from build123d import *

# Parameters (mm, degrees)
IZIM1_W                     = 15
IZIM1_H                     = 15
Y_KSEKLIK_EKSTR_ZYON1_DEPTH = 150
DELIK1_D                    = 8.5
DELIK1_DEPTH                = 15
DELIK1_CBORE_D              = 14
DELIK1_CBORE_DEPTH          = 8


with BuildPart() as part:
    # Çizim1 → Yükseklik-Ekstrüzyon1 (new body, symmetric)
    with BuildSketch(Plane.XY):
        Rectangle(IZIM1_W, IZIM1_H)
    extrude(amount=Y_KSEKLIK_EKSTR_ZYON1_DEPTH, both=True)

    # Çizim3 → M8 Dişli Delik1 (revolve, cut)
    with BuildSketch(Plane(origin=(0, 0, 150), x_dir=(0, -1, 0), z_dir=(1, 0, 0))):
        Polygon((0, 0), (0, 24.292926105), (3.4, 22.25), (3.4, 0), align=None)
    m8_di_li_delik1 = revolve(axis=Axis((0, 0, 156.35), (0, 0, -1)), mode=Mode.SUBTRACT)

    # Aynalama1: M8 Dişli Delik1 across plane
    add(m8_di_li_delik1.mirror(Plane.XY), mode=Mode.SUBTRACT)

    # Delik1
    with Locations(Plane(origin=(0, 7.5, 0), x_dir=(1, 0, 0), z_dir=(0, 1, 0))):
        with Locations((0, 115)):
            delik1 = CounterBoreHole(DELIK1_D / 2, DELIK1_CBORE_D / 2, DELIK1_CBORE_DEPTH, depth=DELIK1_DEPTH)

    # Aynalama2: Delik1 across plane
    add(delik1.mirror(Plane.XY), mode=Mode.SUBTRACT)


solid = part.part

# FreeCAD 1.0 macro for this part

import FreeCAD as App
import Part
import Sketcher
Q = App.Units.Quantity


def add_polygon(sketch, points):
    """Adds a closed chain of lines whose ends are joined by coincident constraints."""
    first, n = sketch.GeometryCount, len(points)
    for a, b in zip(points, points[1:] + points[:1]):
        sketch.addGeometry(Part.LineSegment(App.Vector(*a, 0), App.Vector(*b, 0)), False)
    for i in range(n):
        sketch.addConstraint(Sketcher.Constraint("Coincident", first + i, 2, first + (i + 1) % n, 1))

doc = App.newDocument("Part")
params = doc.addObject("Spreadsheet::Sheet", "Params")
for row, (alias, value) in enumerate([
    ("sketch1_width", "15 mm"),
    ("pad1_length", "300 mm"),
    ("sketch2_width", "3.4 mm"),
    ("sketch2_height", "22.25 mm"),
    ("groove_angle", "360 deg"),
    ("sketch3_diameter", "8.5 mm"),
    ("hole_diameter", "8.5 mm"),
    ("hole_depth", "15 mm"),
    ("hole_cbore_diameter", "14 mm"),
    ("hole_cbore_depth", "8 mm"),
], start=1):
    params.set(f"A{row}", alias)
    params.set(f"B{row}", "=" + value)
    params.setAlias(f"B{row}", alias)

body = doc.addObject("PartDesign::Body", "Body")

# Sketch on XY plane
sketch1 = doc.addObject("Sketcher::SketchObject", "Sketch")
body.addObject(sketch1)
sketch1.AttachmentSupport = (doc.XY_Plane, [""])
sketch1.MapMode = "FlatFace"
add_polygon(sketch1, [(-7.5, 7.5), (-7.5, -7.5), (7.5, -7.5), (7.5, 7.5)])  # lines 0-3
sketch1.addConstraint(Sketcher.Constraint("Vertical", 0))
sketch1.addConstraint(Sketcher.Constraint("Horizontal", 1))
sketch1.addConstraint(Sketcher.Constraint("Vertical", 2))
sketch1.addConstraint(Sketcher.Constraint("Horizontal", 3))
sketch1.addConstraint(Sketcher.Constraint("Symmetric", 0, 2, 2, 2, -1, 1))
sketch1.addConstraint(Sketcher.Constraint("Equal", 3, 0))
sketch1.addConstraint(Sketcher.Constraint("DistanceX", 1, 1, 1, 2, Q("15 mm")))
sketch1.setExpression("Constraints[10]", "Params.sketch1_width")
pad1 = doc.addObject("PartDesign::Pad", "Pad")
body.addObject(pad1)
pad1.Profile = sketch1
pad1.setExpression("Length", "Params.pad1_length")
pad1.Midplane = True

# Sketch on YZ plane
sketch2 = doc.addObject("Sketcher::SketchObject", "Sketch001")
body.addObject(sketch2)
sketch2.AttachmentSupport = (doc.YZ_Plane, [""])
sketch2.MapMode = "FlatFace"
add_polygon(sketch2, [(0, 125.707074), (0, 150), (-3.4, 150), (-3.4, 127.75)])  # lines 0-3
sketch2.addConstraint(Sketcher.Constraint("Vertical", 0))
sketch2.addConstraint(Sketcher.Constraint("Horizontal", 1))
sketch2.addConstraint(Sketcher.Constraint("Vertical", 2))
sketch2.addConstraint(Sketcher.Constraint("PointOnObject", 0, 2, -2))
sketch2.addConstraint(Sketcher.Constraint("Angle", 3, Q("-31 deg")))
sketch2.addConstraint(Sketcher.Constraint("DistanceX", 1, 2, 1, 1, Q("3.4 mm")))
sketch2.addConstraint(Sketcher.Constraint("DistanceY", -1, 1, 0, 2, Q("150 mm")))
sketch2.addConstraint(Sketcher.Constraint("DistanceY", 2, 2, 2, 1, Q("22.25 mm")))
sketch2.setExpression("Constraints[9]", "Params.sketch2_width")
sketch2.setExpression("Constraints[11]", "Params.sketch2_height")
groove = doc.addObject("PartDesign::Groove", "Groove")
body.addObject(groove)
groove.Profile = sketch2
groove.ReferenceAxis = (sketch2, ["V_Axis"])
groove.setExpression("Angle", "Params.groove_angle")
doc.recompute()

mirrored = doc.addObject("PartDesign::Mirrored", "Mirrored")
body.addObject(mirrored)
mirrored.Originals = [groove]
mirrored.MirrorPlane = (doc.XY_Plane, [""])
body.Tip = mirrored

# Sketch on XZ plane
sketch3 = doc.addObject("Sketcher::SketchObject", "Sketch002")
body.addObject(sketch3)
sketch3.AttachmentSupport = (doc.XZ_Plane, [""])
sketch3.MapMode = "FlatFace"
sketch3.AttachmentOffset = App.Placement(App.Vector(0, 0, -7.5), App.Rotation())
sketch3.addGeometry(Part.Circle(App.Vector(0, -115, 0), App.Vector(0, 0, 1), 4.25), False)
sketch3.addConstraint(Sketcher.Constraint("PointOnObject", 0, 3, -2))
sketch3.addConstraint(Sketcher.Constraint("Diameter", 0, Q("8.5 mm")))
sketch3.addConstraint(Sketcher.Constraint("DistanceY", 0, 3, -1, 1, Q("115 mm")))
sketch3.setExpression("Constraints[1]", "Params.sketch3_diameter")
doc.recompute()
hole = doc.addObject("PartDesign::Hole", "Hole")
body.addObject(hole)
hole.Profile = sketch3
hole.ThreadType = "None"
hole.setExpression("Diameter", "Params.hole_diameter")
hole.DepthType = "Dimension"
hole.setExpression("Depth", "Params.hole_depth")
hole.DrillPoint = "Flat"
hole.HoleCutType = "Counterbore"
hole.setExpression("HoleCutDiameter", "Params.hole_cbore_diameter")
hole.setExpression("HoleCutDepth", "Params.hole_cbore_depth")
hole.Reversed = True
doc.recompute()

mirrored2 = doc.addObject("PartDesign::Mirrored", "Mirrored001")
body.addObject(mirrored2)
mirrored2.Originals = [hole]
mirrored2.MirrorPlane = (doc.XY_Plane, [""])
body.Tip = mirrored2

doc.recompute()
